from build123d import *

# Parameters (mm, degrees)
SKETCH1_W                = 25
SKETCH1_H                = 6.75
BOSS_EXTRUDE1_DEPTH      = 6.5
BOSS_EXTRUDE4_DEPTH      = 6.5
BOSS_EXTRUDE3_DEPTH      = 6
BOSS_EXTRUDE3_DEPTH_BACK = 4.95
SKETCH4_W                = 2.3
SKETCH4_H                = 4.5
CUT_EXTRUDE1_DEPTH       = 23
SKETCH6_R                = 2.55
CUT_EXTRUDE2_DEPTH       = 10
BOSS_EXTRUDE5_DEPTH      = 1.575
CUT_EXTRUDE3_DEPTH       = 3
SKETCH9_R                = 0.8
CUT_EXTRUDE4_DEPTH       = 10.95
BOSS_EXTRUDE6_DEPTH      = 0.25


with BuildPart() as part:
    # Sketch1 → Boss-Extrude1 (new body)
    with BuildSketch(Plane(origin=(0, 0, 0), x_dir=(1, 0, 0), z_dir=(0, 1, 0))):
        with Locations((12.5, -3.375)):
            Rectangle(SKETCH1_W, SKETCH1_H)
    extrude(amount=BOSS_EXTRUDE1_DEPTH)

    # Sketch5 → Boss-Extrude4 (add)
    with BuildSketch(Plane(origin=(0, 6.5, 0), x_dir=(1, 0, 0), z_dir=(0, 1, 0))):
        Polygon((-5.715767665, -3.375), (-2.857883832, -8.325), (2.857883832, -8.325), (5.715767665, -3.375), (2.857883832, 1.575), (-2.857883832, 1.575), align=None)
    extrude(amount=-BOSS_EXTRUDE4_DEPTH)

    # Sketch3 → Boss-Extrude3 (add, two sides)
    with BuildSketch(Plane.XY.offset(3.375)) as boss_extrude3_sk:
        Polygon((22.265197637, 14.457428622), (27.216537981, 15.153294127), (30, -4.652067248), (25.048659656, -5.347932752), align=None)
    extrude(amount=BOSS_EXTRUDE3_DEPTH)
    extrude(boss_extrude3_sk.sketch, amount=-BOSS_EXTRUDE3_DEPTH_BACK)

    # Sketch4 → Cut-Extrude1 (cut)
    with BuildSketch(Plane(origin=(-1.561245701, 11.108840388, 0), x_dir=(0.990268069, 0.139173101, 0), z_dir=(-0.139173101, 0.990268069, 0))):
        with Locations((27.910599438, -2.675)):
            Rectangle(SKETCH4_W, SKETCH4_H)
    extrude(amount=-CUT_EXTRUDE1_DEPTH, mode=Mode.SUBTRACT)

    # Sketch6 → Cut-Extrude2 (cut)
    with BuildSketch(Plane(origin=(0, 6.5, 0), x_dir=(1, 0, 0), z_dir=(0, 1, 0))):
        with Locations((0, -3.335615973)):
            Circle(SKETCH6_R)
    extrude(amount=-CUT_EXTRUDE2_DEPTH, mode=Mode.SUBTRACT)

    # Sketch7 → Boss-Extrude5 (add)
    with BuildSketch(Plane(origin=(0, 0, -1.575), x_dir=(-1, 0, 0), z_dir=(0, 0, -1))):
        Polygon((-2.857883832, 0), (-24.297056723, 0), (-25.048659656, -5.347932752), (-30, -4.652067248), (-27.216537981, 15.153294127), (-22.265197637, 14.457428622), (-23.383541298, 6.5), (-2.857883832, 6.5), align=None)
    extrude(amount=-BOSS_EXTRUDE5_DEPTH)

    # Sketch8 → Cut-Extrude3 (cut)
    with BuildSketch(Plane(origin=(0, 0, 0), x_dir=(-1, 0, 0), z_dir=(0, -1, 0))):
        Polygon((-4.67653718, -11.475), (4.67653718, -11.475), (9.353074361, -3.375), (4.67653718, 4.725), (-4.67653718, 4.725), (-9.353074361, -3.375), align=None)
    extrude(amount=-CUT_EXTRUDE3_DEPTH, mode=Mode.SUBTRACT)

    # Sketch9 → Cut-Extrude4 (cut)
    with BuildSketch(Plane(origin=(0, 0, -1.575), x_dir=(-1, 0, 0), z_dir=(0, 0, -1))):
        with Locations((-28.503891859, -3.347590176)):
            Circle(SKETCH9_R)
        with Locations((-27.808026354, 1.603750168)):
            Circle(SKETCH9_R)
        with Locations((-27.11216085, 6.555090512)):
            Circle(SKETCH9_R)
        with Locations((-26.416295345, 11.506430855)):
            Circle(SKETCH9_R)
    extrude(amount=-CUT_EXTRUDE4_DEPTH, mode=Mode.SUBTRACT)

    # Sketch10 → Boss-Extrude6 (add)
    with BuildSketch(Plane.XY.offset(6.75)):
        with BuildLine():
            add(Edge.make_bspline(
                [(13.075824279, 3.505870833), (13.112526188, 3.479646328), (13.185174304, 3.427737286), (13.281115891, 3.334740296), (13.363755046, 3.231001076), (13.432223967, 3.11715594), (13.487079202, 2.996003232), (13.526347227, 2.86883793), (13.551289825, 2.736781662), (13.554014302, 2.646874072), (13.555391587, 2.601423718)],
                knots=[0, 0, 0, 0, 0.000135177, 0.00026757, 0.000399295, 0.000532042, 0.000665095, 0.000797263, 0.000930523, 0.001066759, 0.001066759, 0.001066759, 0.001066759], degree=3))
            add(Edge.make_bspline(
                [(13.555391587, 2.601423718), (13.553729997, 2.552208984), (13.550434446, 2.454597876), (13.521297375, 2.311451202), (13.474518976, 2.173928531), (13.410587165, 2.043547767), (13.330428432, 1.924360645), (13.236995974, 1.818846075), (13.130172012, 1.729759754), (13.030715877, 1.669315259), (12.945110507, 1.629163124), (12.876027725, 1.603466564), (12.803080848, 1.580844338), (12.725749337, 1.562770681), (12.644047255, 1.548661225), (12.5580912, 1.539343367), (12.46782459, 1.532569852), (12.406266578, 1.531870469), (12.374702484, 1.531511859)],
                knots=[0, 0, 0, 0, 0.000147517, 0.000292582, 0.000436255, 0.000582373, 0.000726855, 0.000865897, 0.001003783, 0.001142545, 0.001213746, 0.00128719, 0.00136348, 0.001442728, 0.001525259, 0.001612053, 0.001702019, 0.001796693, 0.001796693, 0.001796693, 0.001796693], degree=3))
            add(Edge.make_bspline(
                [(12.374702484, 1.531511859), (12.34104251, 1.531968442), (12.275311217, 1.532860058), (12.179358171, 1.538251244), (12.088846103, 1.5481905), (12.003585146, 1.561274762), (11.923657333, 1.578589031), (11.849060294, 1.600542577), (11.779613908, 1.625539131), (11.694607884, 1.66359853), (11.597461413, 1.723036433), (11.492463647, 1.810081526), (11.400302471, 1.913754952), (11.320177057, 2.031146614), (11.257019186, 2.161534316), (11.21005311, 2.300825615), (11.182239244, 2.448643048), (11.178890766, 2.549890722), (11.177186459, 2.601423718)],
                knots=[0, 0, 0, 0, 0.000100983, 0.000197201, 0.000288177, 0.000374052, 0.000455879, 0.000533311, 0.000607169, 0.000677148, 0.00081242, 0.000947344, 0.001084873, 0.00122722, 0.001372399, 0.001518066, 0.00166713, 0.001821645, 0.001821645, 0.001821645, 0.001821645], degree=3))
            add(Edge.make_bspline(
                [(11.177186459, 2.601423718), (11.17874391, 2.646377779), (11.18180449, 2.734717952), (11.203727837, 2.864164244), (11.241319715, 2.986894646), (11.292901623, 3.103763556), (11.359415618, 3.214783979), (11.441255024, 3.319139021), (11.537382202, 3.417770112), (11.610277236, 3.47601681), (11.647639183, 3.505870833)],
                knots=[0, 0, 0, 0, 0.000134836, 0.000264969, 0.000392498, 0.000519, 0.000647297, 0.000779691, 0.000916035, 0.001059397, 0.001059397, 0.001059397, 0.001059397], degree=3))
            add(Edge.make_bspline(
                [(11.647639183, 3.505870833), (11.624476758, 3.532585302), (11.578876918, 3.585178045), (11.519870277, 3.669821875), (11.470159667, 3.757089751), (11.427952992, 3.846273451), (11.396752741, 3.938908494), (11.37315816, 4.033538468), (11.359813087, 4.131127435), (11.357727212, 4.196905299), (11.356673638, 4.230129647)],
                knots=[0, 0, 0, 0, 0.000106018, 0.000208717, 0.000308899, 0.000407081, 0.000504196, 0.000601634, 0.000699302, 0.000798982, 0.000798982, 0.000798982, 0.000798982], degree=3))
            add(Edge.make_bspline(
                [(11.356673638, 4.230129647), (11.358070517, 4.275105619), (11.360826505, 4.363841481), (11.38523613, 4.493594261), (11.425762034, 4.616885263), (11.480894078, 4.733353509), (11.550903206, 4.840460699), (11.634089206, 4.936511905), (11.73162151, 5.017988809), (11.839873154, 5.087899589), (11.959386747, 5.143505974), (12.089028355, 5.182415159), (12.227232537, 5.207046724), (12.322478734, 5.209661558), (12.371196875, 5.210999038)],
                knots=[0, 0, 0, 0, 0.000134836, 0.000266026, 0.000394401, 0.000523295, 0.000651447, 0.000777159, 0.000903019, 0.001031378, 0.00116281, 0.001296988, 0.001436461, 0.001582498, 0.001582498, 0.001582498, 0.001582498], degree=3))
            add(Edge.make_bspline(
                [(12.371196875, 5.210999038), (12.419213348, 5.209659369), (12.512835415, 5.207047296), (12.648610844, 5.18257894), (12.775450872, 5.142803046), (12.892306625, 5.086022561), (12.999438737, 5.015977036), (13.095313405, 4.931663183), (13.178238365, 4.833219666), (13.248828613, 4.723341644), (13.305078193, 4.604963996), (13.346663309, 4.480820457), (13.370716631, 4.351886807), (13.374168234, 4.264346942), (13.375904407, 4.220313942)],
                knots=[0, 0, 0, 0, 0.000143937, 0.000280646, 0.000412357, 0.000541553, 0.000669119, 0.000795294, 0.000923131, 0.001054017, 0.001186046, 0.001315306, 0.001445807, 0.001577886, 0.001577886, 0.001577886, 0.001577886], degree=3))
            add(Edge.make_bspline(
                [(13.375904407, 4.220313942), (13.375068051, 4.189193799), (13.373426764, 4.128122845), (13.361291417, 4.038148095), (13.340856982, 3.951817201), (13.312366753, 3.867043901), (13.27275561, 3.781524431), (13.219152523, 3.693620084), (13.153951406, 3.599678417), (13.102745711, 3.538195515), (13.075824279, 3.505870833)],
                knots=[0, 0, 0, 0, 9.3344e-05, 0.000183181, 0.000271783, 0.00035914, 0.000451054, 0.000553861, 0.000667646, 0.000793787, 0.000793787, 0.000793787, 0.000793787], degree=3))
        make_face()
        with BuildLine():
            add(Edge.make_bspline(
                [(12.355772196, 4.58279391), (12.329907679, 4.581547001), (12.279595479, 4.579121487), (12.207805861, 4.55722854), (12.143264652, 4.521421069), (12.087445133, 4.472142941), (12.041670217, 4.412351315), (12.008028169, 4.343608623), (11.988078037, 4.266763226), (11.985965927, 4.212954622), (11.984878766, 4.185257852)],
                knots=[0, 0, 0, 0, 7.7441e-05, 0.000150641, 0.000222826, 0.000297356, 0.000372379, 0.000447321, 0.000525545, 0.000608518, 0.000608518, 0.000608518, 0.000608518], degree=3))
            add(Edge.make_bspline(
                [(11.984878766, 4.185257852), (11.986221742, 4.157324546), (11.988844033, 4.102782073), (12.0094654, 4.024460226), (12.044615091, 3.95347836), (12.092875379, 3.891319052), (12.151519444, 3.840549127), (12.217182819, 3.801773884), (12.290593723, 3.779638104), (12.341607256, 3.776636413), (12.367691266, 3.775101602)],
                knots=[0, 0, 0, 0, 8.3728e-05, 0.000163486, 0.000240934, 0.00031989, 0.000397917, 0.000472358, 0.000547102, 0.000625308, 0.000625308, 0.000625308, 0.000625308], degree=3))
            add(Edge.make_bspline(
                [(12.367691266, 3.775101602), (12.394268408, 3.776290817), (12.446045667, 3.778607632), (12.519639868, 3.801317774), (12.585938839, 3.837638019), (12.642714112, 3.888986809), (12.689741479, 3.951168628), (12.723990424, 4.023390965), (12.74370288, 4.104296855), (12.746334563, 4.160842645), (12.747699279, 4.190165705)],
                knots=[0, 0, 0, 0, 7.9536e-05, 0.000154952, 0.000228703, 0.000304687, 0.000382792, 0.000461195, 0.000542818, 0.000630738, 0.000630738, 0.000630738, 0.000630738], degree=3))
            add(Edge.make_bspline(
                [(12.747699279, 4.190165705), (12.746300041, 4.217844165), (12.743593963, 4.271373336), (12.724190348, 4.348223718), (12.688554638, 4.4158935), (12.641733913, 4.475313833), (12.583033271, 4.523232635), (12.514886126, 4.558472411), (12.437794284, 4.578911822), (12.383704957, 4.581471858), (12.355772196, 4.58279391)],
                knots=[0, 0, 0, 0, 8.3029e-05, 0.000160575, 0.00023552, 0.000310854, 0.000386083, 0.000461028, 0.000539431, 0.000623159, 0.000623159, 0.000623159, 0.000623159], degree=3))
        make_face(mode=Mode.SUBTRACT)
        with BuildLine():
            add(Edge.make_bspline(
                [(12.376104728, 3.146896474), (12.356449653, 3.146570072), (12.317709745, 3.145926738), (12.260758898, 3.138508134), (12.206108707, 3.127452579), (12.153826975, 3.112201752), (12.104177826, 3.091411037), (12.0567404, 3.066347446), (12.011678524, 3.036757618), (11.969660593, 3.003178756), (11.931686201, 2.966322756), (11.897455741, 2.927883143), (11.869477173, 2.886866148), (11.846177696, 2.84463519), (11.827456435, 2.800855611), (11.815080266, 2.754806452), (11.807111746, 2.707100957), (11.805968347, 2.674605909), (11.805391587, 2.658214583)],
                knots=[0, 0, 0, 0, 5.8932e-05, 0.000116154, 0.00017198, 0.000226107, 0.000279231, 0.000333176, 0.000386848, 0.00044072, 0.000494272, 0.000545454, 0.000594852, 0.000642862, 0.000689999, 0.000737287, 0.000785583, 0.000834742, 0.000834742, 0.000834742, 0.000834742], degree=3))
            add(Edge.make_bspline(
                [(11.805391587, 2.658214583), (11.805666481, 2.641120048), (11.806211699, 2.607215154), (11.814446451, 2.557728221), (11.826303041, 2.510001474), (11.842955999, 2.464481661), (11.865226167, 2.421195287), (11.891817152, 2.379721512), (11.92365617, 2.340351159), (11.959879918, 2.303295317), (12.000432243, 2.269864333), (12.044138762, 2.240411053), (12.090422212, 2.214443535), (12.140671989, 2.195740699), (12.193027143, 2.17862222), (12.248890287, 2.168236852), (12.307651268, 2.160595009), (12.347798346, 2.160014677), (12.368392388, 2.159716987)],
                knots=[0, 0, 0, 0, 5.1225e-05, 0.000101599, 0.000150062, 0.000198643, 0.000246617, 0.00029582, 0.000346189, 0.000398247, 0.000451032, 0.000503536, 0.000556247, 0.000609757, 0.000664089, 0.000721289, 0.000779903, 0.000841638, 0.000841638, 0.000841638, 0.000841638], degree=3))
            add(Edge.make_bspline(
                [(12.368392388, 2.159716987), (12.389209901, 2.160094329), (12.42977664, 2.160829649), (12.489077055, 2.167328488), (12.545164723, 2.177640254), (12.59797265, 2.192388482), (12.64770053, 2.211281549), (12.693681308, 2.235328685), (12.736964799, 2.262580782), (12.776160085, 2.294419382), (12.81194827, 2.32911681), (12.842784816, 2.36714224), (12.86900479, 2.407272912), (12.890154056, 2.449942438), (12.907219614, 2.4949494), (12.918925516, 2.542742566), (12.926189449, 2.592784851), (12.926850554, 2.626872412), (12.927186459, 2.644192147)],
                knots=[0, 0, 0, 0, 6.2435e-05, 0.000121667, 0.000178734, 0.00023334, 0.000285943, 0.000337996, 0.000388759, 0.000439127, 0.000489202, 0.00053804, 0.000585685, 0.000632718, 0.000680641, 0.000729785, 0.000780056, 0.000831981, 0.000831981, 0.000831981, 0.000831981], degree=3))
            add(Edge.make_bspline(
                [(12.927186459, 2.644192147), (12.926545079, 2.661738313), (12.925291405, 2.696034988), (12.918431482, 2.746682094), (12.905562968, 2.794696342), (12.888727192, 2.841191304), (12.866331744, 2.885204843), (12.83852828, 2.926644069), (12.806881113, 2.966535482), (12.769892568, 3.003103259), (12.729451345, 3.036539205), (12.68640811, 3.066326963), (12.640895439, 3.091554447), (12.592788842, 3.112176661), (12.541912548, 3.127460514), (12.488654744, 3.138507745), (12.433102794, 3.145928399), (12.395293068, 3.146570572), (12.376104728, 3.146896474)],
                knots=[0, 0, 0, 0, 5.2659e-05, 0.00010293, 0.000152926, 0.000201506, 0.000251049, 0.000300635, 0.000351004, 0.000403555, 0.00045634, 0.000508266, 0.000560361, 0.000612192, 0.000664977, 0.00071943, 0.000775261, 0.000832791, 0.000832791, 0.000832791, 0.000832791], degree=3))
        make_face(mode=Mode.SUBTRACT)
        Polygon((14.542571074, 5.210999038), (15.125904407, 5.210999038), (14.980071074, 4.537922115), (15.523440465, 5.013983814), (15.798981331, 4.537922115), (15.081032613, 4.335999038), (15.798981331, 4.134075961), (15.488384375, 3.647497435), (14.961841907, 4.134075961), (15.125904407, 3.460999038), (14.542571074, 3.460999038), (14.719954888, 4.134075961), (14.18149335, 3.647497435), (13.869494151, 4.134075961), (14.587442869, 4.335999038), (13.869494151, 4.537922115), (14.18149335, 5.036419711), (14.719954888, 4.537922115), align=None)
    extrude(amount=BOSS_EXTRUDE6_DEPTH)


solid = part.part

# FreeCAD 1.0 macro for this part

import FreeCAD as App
import Part
import Sketcher
Q = App.Units.Quantity

doc = App.newDocument("Part")
params = doc.addObject("Spreadsheet::Sheet", "Params")
for row, (alias, value) in enumerate([
    ("sketch1_width", "25 mm"),
    ("sketch1_height", "6.75 mm"),
    ("pad1_length", "6.5 mm"),
    ("pad2_length", "6.5 mm"),
    ("sketch3_length", "5 mm"),
    ("sketch3_length2", "20 mm"),
    ("pad3_length", "6 mm"),
    ("pad3_length2", "4.95 mm"),
    ("sketch4_width", "2.3 mm"),
    ("sketch4_height", "4.5 mm"),
    ("pocket1_length", "23 mm"),
    ("sketch5_diameter", "5.1 mm"),
    ("pocket2_length", "10 mm"),
    ("sketch6_length", "5 mm"),
    ("sketch6_length2", "20 mm"),
    ("sketch6_height", "6.5 mm"),
    ("pad4_length", "1.575 mm"),
    ("pocket3_length", "3 mm"),
    ("sketch8_diameter", "1.6 mm"),
    ("pocket4_length", "10.95 mm"),
    ("pad5_length", "0.25 mm"),
], start=1):
    params.set(f"A{row}", alias)
    params.set(f"B{row}", "=" + value)
    params.setAlias(f"B{row}", alias)

body = doc.addObject("PartDesign::Body", "Body")

sketch1 = body.newObject("Sketcher::SketchObject", "Sketch")
sketch1.AttachmentSupport = (doc.getObject("XZ_Plane"), [""])
sketch1.MapMode = "FlatFace"
sketch1.addGeometry(Part.LineSegment(App.Vector(0, 0, 0), App.Vector(0, 7, 0)), False)
sketch1.addGeometry(Part.LineSegment(App.Vector(0, 7, 0), App.Vector(25, 7, 0)), False)
sketch1.addGeometry(Part.LineSegment(App.Vector(25, 7, 0), App.Vector(25, 0, 0)), False)
sketch1.addGeometry(Part.LineSegment(App.Vector(25, 0, 0), App.Vector(0, 0, 0)), False)
sketch1.addConstraint(Sketcher.Constraint("Coincident", 0, 2, 1, 1))
sketch1.addConstraint(Sketcher.Constraint("Coincident", 1, 2, 2, 1))
sketch1.addConstraint(Sketcher.Constraint("Coincident", 2, 2, 3, 1))
sketch1.addConstraint(Sketcher.Constraint("Coincident", 3, 2, 0, 1))
sketch1.addConstraint(Sketcher.Constraint("Vertical", 0))
sketch1.addConstraint(Sketcher.Constraint("Horizontal", 1))
sketch1.addConstraint(Sketcher.Constraint("Vertical", 2))
sketch1.addConstraint(Sketcher.Constraint("Horizontal", 3))
sketch1.addConstraint(Sketcher.Constraint("Coincident", 3, 2, -1, 1))
sketch1.addConstraint(Sketcher.Constraint("DistanceX", 1, 1, 1, 2, Q("25 mm")))
sketch1.addConstraint(Sketcher.Constraint("DistanceY", 0, 1, 0, 2, Q("6.75 mm")))
sketch1.setExpression("Constraints[9]", "Params.sketch1_width")
sketch1.setExpression("Constraints[10]", "Params.sketch1_height")
pad1 = body.newObject("PartDesign::Pad", "Pad")
pad1.Profile = sketch1
pad1.setExpression("Length", "Params.pad1_length")
pad1.Reversed = True

sketch2 = body.newObject("Sketcher::SketchObject", "Sketch001")
sketch2.AttachmentSupport = (doc.getObject("XZ_Plane"), [""])
sketch2.MapMode = "FlatFace"
sketch2.AttachmentOffset = App.Placement(App.Vector(0, 0, -6.5), App.Rotation())
sketch2.addGeometry(Part.LineSegment(App.Vector(-6, 3, 0), App.Vector(-3, 8, 0)), False)
sketch2.addGeometry(Part.LineSegment(App.Vector(-3, 8, 0), App.Vector(3, 8, 0)), False)
sketch2.addGeometry(Part.LineSegment(App.Vector(3, 8, 0), App.Vector(6, 3, 0)), False)
sketch2.addGeometry(Part.LineSegment(App.Vector(6, 3, 0), App.Vector(3, -2, 0)), False)
sketch2.addGeometry(Part.LineSegment(App.Vector(3, -2, 0), App.Vector(-3, -2, 0)), False)
sketch2.addGeometry(Part.LineSegment(App.Vector(-3, -2, 0), App.Vector(-6, 3, 0)), False)
sketch2.addConstraint(Sketcher.Constraint("Coincident", 0, 2, 1, 1))
sketch2.addConstraint(Sketcher.Constraint("Coincident", 1, 2, 2, 1))
sketch2.addConstraint(Sketcher.Constraint("Coincident", 2, 2, 3, 1))
sketch2.addConstraint(Sketcher.Constraint("Coincident", 3, 2, 4, 1))
sketch2.addConstraint(Sketcher.Constraint("Coincident", 4, 2, 5, 1))
sketch2.addConstraint(Sketcher.Constraint("Coincident", 5, 2, 0, 1))
sketch2.addConstraint(Sketcher.Constraint("Horizontal", 1))
sketch2.addConstraint(Sketcher.Constraint("Horizontal", 4))
sketch2.addConstraint(Sketcher.Constraint("Symmetric", 2, 2, 5, 2, -2))
sketch2.addConstraint(Sketcher.Constraint("Parallel", 0, 3))
sketch2.addConstraint(Sketcher.Constraint("Parallel", 2, 5))
sketch2.addConstraint(Sketcher.Constraint("Vertical", 1, 2, 3, 2))
sketch2.addConstraint(Sketcher.Constraint("Vertical", 0, 2, 4, 2))
sketch2.addConstraint(Sketcher.Constraint("Angle", 0, Q("60 deg")))
sketch2.addConstraint(Sketcher.Constraint("DistanceY", 3, 2, 1, 2, Q("9.9 mm")))
sketch2.addConstraint(Sketcher.Constraint("DistanceY", -1, 1, 0, 2, Q("8.325 mm")))
sketch2.addConstraint(Sketcher.Constraint("DistanceX", 1, 1, 1, 2, Q("5.715768 mm")))
pad2 = body.newObject("PartDesign::Pad", "Pad001")
pad2.Profile = sketch2
pad2.setExpression("Length", "Params.pad2_length")

sketch3 = body.newObject("Sketcher::SketchObject", "Sketch002")
sketch3.AttachmentSupport = (doc.getObject("XY_Plane"), [""])
sketch3.MapMode = "FlatFace"
sketch3.AttachmentOffset = App.Placement(App.Vector(0, 0, 3.375), App.Rotation())
sketch3.addGeometry(Part.LineSegment(App.Vector(27, 15, 0), App.Vector(22, 14, 0)), False)
sketch3.addGeometry(Part.LineSegment(App.Vector(22, 14, 0), App.Vector(25, -5, 0)), False)
sketch3.addGeometry(Part.LineSegment(App.Vector(25, -5, 0), App.Vector(30, -5, 0)), False)
sketch3.addGeometry(Part.LineSegment(App.Vector(30, -5, 0), App.Vector(27, 15, 0)), False)
sketch3.addConstraint(Sketcher.Constraint("Coincident", 0, 2, 1, 1))
sketch3.addConstraint(Sketcher.Constraint("Coincident", 1, 2, 2, 1))
sketch3.addConstraint(Sketcher.Constraint("Coincident", 2, 2, 3, 1))
sketch3.addConstraint(Sketcher.Constraint("Coincident", 3, 2, 0, 1))
sketch3.addConstraint(Sketcher.Constraint("Perpendicular", 0, 1))
sketch3.addConstraint(Sketcher.Constraint("Perpendicular", 1, 2))
sketch3.addConstraint(Sketcher.Constraint("Perpendicular", 2, 3))
sketch3.addConstraint(Sketcher.Constraint("Angle", 0, Q("-172 deg")))
sketch3.addConstraint(Sketcher.Constraint("Distance", 0, Q("5 mm")))
sketch3.addConstraint(Sketcher.Constraint("Distance", 1, Q("20 mm")))
sketch3.addConstraint(Sketcher.Constraint("DistanceX", -1, 1, 2, 2, Q("30 mm")))
sketch3.addConstraint(Sketcher.Constraint("DistanceY", -1, 1, 0, 2, Q("14.457429 mm")))
sketch3.setExpression("Constraints[8]", "Params.sketch3_length")
sketch3.setExpression("Constraints[9]", "Params.sketch3_length2")
pad3 = body.newObject("PartDesign::Pad", "Pad002")
pad3.Profile = sketch3
pad3.Type = "TwoLengths"
pad3.setExpression("Length", "Params.pad3_length")
pad3.setExpression("Length2", "Params.pad3_length2")

sketch4 = body.newObject("Sketcher::SketchObject", "Sketch003")
sketch4.Placement = App.Placement(App.Vector(-1.561246, 11.10884, 0), App.Rotation(App.Vector(0.990268069, 0.139173101, 0), App.Vector(0, 0, -1.000000001), App.Vector(-0.139173101, 0.990268069, 0), "ZXY"))
sketch4.addGeometry(Part.LineSegment(App.Vector(26.8, -0.4, 0), App.Vector(26.8, -4.9, 0)), False)
sketch4.addGeometry(Part.LineSegment(App.Vector(26.8, -4.9, 0), App.Vector(29.1, -4.9, 0)), False)
sketch4.addGeometry(Part.LineSegment(App.Vector(29.1, -4.9, 0), App.Vector(29.1, -0.4, 0)), False)
sketch4.addGeometry(Part.LineSegment(App.Vector(29.1, -0.4, 0), App.Vector(26.8, -0.4, 0)), False)
sketch4.addConstraint(Sketcher.Constraint("Coincident", 0, 2, 1, 1))
sketch4.addConstraint(Sketcher.Constraint("Coincident", 1, 2, 2, 1))
sketch4.addConstraint(Sketcher.Constraint("Coincident", 2, 2, 3, 1))
sketch4.addConstraint(Sketcher.Constraint("Coincident", 3, 2, 0, 1))
sketch4.addConstraint(Sketcher.Constraint("Vertical", 0))
sketch4.addConstraint(Sketcher.Constraint("Horizontal", 1))
sketch4.addConstraint(Sketcher.Constraint("Vertical", 2))
sketch4.addConstraint(Sketcher.Constraint("Horizontal", 3))
sketch4.addConstraint(Sketcher.Constraint("DistanceX", 1, 1, 1, 2, Q("2.3 mm")))
sketch4.addConstraint(Sketcher.Constraint("DistanceY", 0, 2, 0, 1, Q("4.5 mm")))
sketch4.addConstraint(Sketcher.Constraint("DistanceY", 0, 2, -1, 1, Q("4.925 mm")))
sketch4.addConstraint(Sketcher.Constraint("DistanceX", -1, 1, 0, 2, Q("26.760599 mm")))
sketch4.setExpression("Constraints[8]", "Params.sketch4_width")
sketch4.setExpression("Constraints[9]", "Params.sketch4_height")
pocket1 = body.newObject("PartDesign::Pocket", "Pocket")
pocket1.Profile = sketch4
pocket1.setExpression("Length", "Params.pocket1_length")

sketch5 = body.newObject("Sketcher::SketchObject", "Sketch004")
sketch5.AttachmentSupport = (doc.getObject("XZ_Plane"), [""])
sketch5.MapMode = "FlatFace"
sketch5.AttachmentOffset = App.Placement(App.Vector(0, 0, -6.5), App.Rotation())
sketch5.addGeometry(Part.Circle(App.Vector(0, 3.3, 0), App.Vector(0, 0, 1), 2.5), False)
sketch5.addConstraint(Sketcher.Constraint("PointOnObject", 0, 3, -2))
sketch5.addConstraint(Sketcher.Constraint("Diameter", 0, Q("5.1 mm")))
sketch5.addConstraint(Sketcher.Constraint("DistanceY", -1, 1, 0, 3, Q("3.335616 mm")))
sketch5.setExpression("Constraints[1]", "Params.sketch5_diameter")
pocket2 = body.newObject("PartDesign::Pocket", "Pocket001")
pocket2.Profile = sketch5
pocket2.setExpression("Length", "Params.pocket2_length")
pocket2.Reversed = True

sketch6 = body.newObject("Sketcher::SketchObject", "Sketch005")
sketch6.AttachmentSupport = (doc.getObject("XY_Plane"), [""])
sketch6.MapMode = "FlatFace"
sketch6.AttachmentOffset = App.Placement(App.Vector(0, 0, -1.575), App.Rotation())
sketch6.addGeometry(Part.LineSegment(App.Vector(24, 0, 0), App.Vector(3, 0, 0)), False)
sketch6.addGeometry(Part.LineSegment(App.Vector(3, 0, 0), App.Vector(3, 6, 0)), False)
sketch6.addGeometry(Part.LineSegment(App.Vector(3, 6, 0), App.Vector(23, 6, 0)), False)
sketch6.addGeometry(Part.LineSegment(App.Vector(23, 6, 0), App.Vector(22, 14, 0)), False)
sketch6.addGeometry(Part.LineSegment(App.Vector(22, 14, 0), App.Vector(27, 15, 0)), False)
sketch6.addGeometry(Part.LineSegment(App.Vector(27, 15, 0), App.Vector(30, -5, 0)), False)
sketch6.addGeometry(Part.LineSegment(App.Vector(30, -5, 0), App.Vector(25, -5, 0)), False)
sketch6.addGeometry(Part.LineSegment(App.Vector(25, -5, 0), App.Vector(24, 0, 0)), False)
sketch6.addConstraint(Sketcher.Constraint("Coincident", 0, 2, 1, 1))
sketch6.addConstraint(Sketcher.Constraint("Coincident", 1, 2, 2, 1))
sketch6.addConstraint(Sketcher.Constraint("Coincident", 2, 2, 3, 1))
sketch6.addConstraint(Sketcher.Constraint("Coincident", 3, 2, 4, 1))
sketch6.addConstraint(Sketcher.Constraint("Coincident", 4, 2, 5, 1))
sketch6.addConstraint(Sketcher.Constraint("Coincident", 5, 2, 6, 1))
sketch6.addConstraint(Sketcher.Constraint("Coincident", 6, 2, 7, 1))
sketch6.addConstraint(Sketcher.Constraint("Coincident", 7, 2, 0, 1))
sketch6.addConstraint(Sketcher.Constraint("Horizontal", 0))
sketch6.addConstraint(Sketcher.Constraint("Vertical", 1))
sketch6.addConstraint(Sketcher.Constraint("Horizontal", 2))
sketch6.addConstraint(Sketcher.Constraint("PointOnObject", 0, 2, -1))
sketch6.addConstraint(Sketcher.Constraint("Perpendicular", 3, 4))
sketch6.addConstraint(Sketcher.Constraint("Perpendicular", 4, 5))
sketch6.addConstraint(Sketcher.Constraint("Perpendicular", 5, 6))
sketch6.addConstraint(Sketcher.Constraint("Perpendicular", 6, 7))
sketch6.addConstraint(Sketcher.Constraint("Equal", 4, 6))
sketch6.addConstraint(Sketcher.Constraint("Angle", 3, Q("98 deg")))
sketch6.addConstraint(Sketcher.Constraint("Distance", 4, Q("5 mm")))
sketch6.addConstraint(Sketcher.Constraint("Distance", 5, Q("20 mm")))
sketch6.addConstraint(Sketcher.Constraint("DistanceY", 1, 1, 1, 2, Q("6.5 mm")))
sketch6.addConstraint(Sketcher.Constraint("DistanceX", -1, 1, 5, 2, Q("30 mm")))
sketch6.addConstraint(Sketcher.Constraint("Distance", 3, Q("8.035631 mm")))
sketch6.addConstraint(Sketcher.Constraint("DistanceX", 0, 2, 0, 1, Q("21.439173 mm")))
sketch6.setExpression("Constraints[18]", "Params.sketch6_length")
sketch6.setExpression("Constraints[19]", "Params.sketch6_length2")
sketch6.setExpression("Constraints[20]", "Params.sketch6_height")
pad4 = body.newObject("PartDesign::Pad", "Pad003")
pad4.Profile = sketch6
pad4.setExpression("Length", "Params.pad4_length")

sketch7 = body.newObject("Sketcher::SketchObject", "Sketch006")
sketch7.AttachmentSupport = (doc.getObject("XZ_Plane"), [""])
sketch7.MapMode = "FlatFace"
sketch7.addGeometry(Part.LineSegment(App.Vector(5, 11, 0), App.Vector(-5, 11, 0)), False)
sketch7.addGeometry(Part.LineSegment(App.Vector(-5, 11, 0), App.Vector(-9, 3, 0)), False)
sketch7.addGeometry(Part.LineSegment(App.Vector(-9, 3, 0), App.Vector(-5, -5, 0)), False)
sketch7.addGeometry(Part.LineSegment(App.Vector(-5, -5, 0), App.Vector(5, -5, 0)), False)
sketch7.addGeometry(Part.LineSegment(App.Vector(5, -5, 0), App.Vector(9, 3, 0)), False)
sketch7.addGeometry(Part.LineSegment(App.Vector(9, 3, 0), App.Vector(5, 11, 0)), False)
sketch7.addConstraint(Sketcher.Constraint("Coincident", 0, 2, 1, 1))
sketch7.addConstraint(Sketcher.Constraint("Coincident", 1, 2, 2, 1))
sketch7.addConstraint(Sketcher.Constraint("Coincident", 2, 2, 3, 1))
sketch7.addConstraint(Sketcher.Constraint("Coincident", 3, 2, 4, 1))
sketch7.addConstraint(Sketcher.Constraint("Coincident", 4, 2, 5, 1))
sketch7.addConstraint(Sketcher.Constraint("Coincident", 5, 2, 0, 1))
sketch7.addConstraint(Sketcher.Constraint("Horizontal", 0))
sketch7.addConstraint(Sketcher.Constraint("Horizontal", 3))
sketch7.addConstraint(Sketcher.Constraint("Symmetric", 1, 2, 4, 2, -2))
sketch7.addConstraint(Sketcher.Constraint("Parallel", 1, 4))
sketch7.addConstraint(Sketcher.Constraint("Parallel", 2, 5))
sketch7.addConstraint(Sketcher.Constraint("Vertical", 0, 2, 2, 2))
sketch7.addConstraint(Sketcher.Constraint("Vertical", 3, 2, 5, 2))
sketch7.addConstraint(Sketcher.Constraint("Angle", 1, Q("-120 deg")))
sketch7.addConstraint(Sketcher.Constraint("DistanceY", 1, 2, 0, 2, Q("8.1 mm")))
sketch7.addConstraint(Sketcher.Constraint("DistanceY", -1, 1, 0, 2, Q("11.475 mm")))
sketch7.addConstraint(Sketcher.Constraint("DistanceX", 0, 2, 0, 1, Q("9.353074 mm")))
pocket3 = body.newObject("PartDesign::Pocket", "Pocket002")
pocket3.Profile = sketch7
pocket3.setExpression("Length", "Params.pocket3_length")

sketch8 = body.newObject("Sketcher::SketchObject", "Sketch007")
sketch8.AttachmentSupport = (doc.getObject("XY_Plane"), [""])
sketch8.MapMode = "FlatFace"
sketch8.AttachmentOffset = App.Placement(App.Vector(0, 0, -1.575), App.Rotation())
sketch8.addGeometry(Part.Circle(App.Vector(28.5, -3.3, 0), App.Vector(0, 0, 1), 0.8), False)
sketch8.addGeometry(Part.Circle(App.Vector(27.8, 1.6, 0), App.Vector(0, 0, 1), 0.8), False)
sketch8.addGeometry(Part.Circle(App.Vector(27.1, 6.6, 0), App.Vector(0, 0, 1), 0.8), False)
sketch8.addGeometry(Part.Circle(App.Vector(26.4, 11.5, 0), App.Vector(0, 0, 1), 0.8), False)
sketch8.addConstraint(Sketcher.Constraint("Equal", 0, 1))
sketch8.addConstraint(Sketcher.Constraint("Equal", 1, 2))
sketch8.addConstraint(Sketcher.Constraint("Equal", 2, 3))
sketch8.addConstraint(Sketcher.Constraint("Diameter", 0, Q("1.6 mm")))
sketch8.addConstraint(Sketcher.Constraint("DistanceX", -1, 1, 0, 3, Q("28.503892 mm")))
sketch8.addConstraint(Sketcher.Constraint("DistanceY", 0, 3, -1, 1, Q("3.34759 mm")))
sketch8.addConstraint(Sketcher.Constraint("DistanceY", -1, 1, 1, 3, Q("1.60375 mm")))
sketch8.addConstraint(Sketcher.Constraint("DistanceX", -1, 1, 2, 3, Q("27.112161 mm")))
sketch8.addConstraint(Sketcher.Constraint("DistanceY", -1, 1, 2, 3, Q("6.555091 mm")))
sketch8.addConstraint(Sketcher.Constraint("DistanceY", -1, 1, 3, 3, Q("11.506431 mm")))
sketch8.addConstraint(Sketcher.Constraint("DistanceX", 3, 3, 1, 3, Q("1.391731 mm")))
sketch8.addConstraint(Sketcher.Constraint("DistanceX", -1, 1, 1, 3, Q("27.808026 mm")))
sketch8.setExpression("Constraints[3]", "Params.sketch8_diameter")
pocket4 = body.newObject("PartDesign::Pocket", "Pocket003")
pocket4.Profile = sketch8
pocket4.setExpression("Length", "Params.pocket4_length")
pocket4.Reversed = True

sketch9 = body.newObject("Sketcher::SketchObject", "Sketch008")
sketch9.AttachmentSupport = (doc.getObject("XY_Plane"), [""])
sketch9.MapMode = "FlatFace"
sketch9.AttachmentOffset = App.Placement(App.Vector(0, 0, 6.75), App.Rotation())
sketch9.addGeometry(Part.BSplineCurve([App.Vector(13.075824, 3.505871, 0), App.Vector(13.112526, 3.479646, 0), App.Vector(13.185174, 3.427737, 0), App.Vector(13.281116, 3.33474, 0), App.Vector(13.363755, 3.231001, 0), App.Vector(13.432224, 3.117156, 0), App.Vector(13.487079, 2.996003, 0), App.Vector(13.526347, 2.868838, 0), App.Vector(13.55129, 2.736782, 0), App.Vector(13.554014, 2.646874, 0), App.Vector(13.555392, 2.601424, 0)], [4, 1, 1, 1, 1, 1, 1, 1, 4], [0, 0.000135177, 0.00026757, 0.000399295, 0.000532042, 0.000665095, 0.000797263, 0.000930523, 0.001066759], False, 3, [1, 1, 1, 1, 1, 1, 1, 1, 1, 1, 1], False), False)
sketch9.addGeometry(Part.BSplineCurve([App.Vector(13.375904, 4.220314, 0), App.Vector(13.375068, 4.189194, 0), App.Vector(13.373427, 4.128123, 0), App.Vector(13.361291, 4.038148, 0), App.Vector(13.340857, 3.951817, 0), App.Vector(13.312367, 3.867044, 0), App.Vector(13.272756, 3.781524, 0), App.Vector(13.219153, 3.69362, 0), App.Vector(13.153951, 3.599678, 0), App.Vector(13.102746, 3.538196, 0), App.Vector(13.075824, 3.505871, 0)], [4, 1, 1, 1, 1, 1, 1, 1, 4], [0, 0.000093344, 0.000183181, 0.000271783, 0.00035914, 0.000451054, 0.000553861, 0.000667646, 0.000793787], False, 3, [1, 1, 1, 1, 1, 1, 1, 1, 1, 1, 1], False), False)
sketch9.addGeometry(Part.BSplineCurve([App.Vector(12.371197, 5.210999, 0), App.Vector(12.419213, 5.209659, 0), App.Vector(12.512835, 5.207047, 0), App.Vector(12.648611, 5.182579, 0), App.Vector(12.775451, 5.142803, 0), App.Vector(12.892307, 5.086023, 0), App.Vector(12.999439, 5.015977, 0), App.Vector(13.095313, 4.931663, 0), App.Vector(13.178238, 4.83322, 0), App.Vector(13.248829, 4.723342, 0), App.Vector(13.305078, 4.604964, 0), App.Vector(13.346663, 4.48082, 0), App.Vector(13.370717, 4.351887, 0), App.Vector(13.374168, 4.264347, 0), App.Vector(13.375904, 4.220314, 0)], [4, 1, 1, 1, 1, 1, 1, 1, 1, 1, 1, 1, 4], [0, 0.000143937, 0.000280646, 0.000412357, 0.000541553, 0.000669119, 0.000795294, 0.000923131, 0.001054017, 0.001186046, 0.001315306, 0.001445807, 0.001577886], False, 3, [1, 1, 1, 1, 1, 1, 1, 1, 1, 1, 1, 1, 1, 1, 1], False), False)
sketch9.addGeometry(Part.BSplineCurve([App.Vector(11.356674, 4.23013, 0), App.Vector(11.358071, 4.275106, 0), App.Vector(11.360827, 4.363841, 0), App.Vector(11.385236, 4.493594, 0), App.Vector(11.425762, 4.616885, 0), App.Vector(11.480894, 4.733354, 0), App.Vector(11.550903, 4.840461, 0), App.Vector(11.634089, 4.936512, 0), App.Vector(11.731622, 5.017989, 0), App.Vector(11.839873, 5.0879, 0), App.Vector(11.959387, 5.143506, 0), App.Vector(12.089028, 5.182415, 0), App.Vector(12.227233, 5.207047, 0), App.Vector(12.322479, 5.209662, 0), App.Vector(12.371197, 5.210999, 0)], [4, 1, 1, 1, 1, 1, 1, 1, 1, 1, 1, 1, 4], [0, 0.000134836, 0.000266026, 0.000394401, 0.000523295, 0.000651447, 0.000777159, 0.000903019, 0.001031378, 0.00116281, 0.001296988, 0.001436461, 0.001582498], False, 3, [1, 1, 1, 1, 1, 1, 1, 1, 1, 1, 1, 1, 1, 1, 1], False), False)
sketch9.addGeometry(Part.BSplineCurve([App.Vector(11.647639, 3.505871, 0), App.Vector(11.624477, 3.532585, 0), App.Vector(11.578877, 3.585178, 0), App.Vector(11.51987, 3.669822, 0), App.Vector(11.47016, 3.75709, 0), App.Vector(11.427953, 3.846273, 0), App.Vector(11.396753, 3.938908, 0), App.Vector(11.373158, 4.033538, 0), App.Vector(11.359813, 4.131127, 0), App.Vector(11.357727, 4.196905, 0), App.Vector(11.356674, 4.23013, 0)], [4, 1, 1, 1, 1, 1, 1, 1, 4], [0, 0.000106018, 0.000208717, 0.000308899, 0.000407081, 0.000504196, 0.000601634, 0.000699302, 0.000798982], False, 3, [1, 1, 1, 1, 1, 1, 1, 1, 1, 1, 1], False), False)
sketch9.addGeometry(Part.BSplineCurve([App.Vector(11.177186, 2.601424, 0), App.Vector(11.178744, 2.646378, 0), App.Vector(11.181804, 2.734718, 0), App.Vector(11.203728, 2.864164, 0), App.Vector(11.24132, 2.986895, 0), App.Vector(11.292902, 3.103764, 0), App.Vector(11.359416, 3.214784, 0), App.Vector(11.441255, 3.319139, 0), App.Vector(11.537382, 3.41777, 0), App.Vector(11.610277, 3.476017, 0), App.Vector(11.647639, 3.505871, 0)], [4, 1, 1, 1, 1, 1, 1, 1, 4], [0, 0.000134836, 0.000264969, 0.000392498, 0.000519, 0.000647297, 0.000779691, 0.000916035, 0.001059397], False, 3, [1, 1, 1, 1, 1, 1, 1, 1, 1, 1, 1], False), False)
sketch9.addGeometry(Part.BSplineCurve([App.Vector(12.374702, 1.531512, 0), App.Vector(12.341043, 1.531968, 0), App.Vector(12.275311, 1.53286, 0), App.Vector(12.179358, 1.538251, 0), App.Vector(12.088846, 1.548191, 0), App.Vector(12.003585, 1.561275, 0), App.Vector(11.923657, 1.578589, 0), App.Vector(11.84906, 1.600543, 0), App.Vector(11.779614, 1.625539, 0), App.Vector(11.694608, 1.663599, 0), App.Vector(11.597461, 1.723036, 0), App.Vector(11.492464, 1.810082, 0), App.Vector(11.400302, 1.913755, 0), App.Vector(11.320177, 2.031147, 0), App.Vector(11.257019, 2.161534, 0), App.Vector(11.210053, 2.300826, 0), App.Vector(11.182239, 2.448643, 0), App.Vector(11.178891, 2.549891, 0), App.Vector(11.177186, 2.601424, 0)], [4, 1, 1, 1, 1, 1, 1, 1, 1, 1, 1, 1, 1, 1, 1, 1, 4], [0, 0.000100983, 0.000197201, 0.000288177, 0.000374052, 0.000455879, 0.000533311, 0.000607169, 0.000677148, 0.00081242, 0.000947344, 0.001084873, 0.00122722, 0.001372399, 0.001518066, 0.00166713, 0.001821645], False, 3, [1, 1, 1, 1, 1, 1, 1, 1, 1, 1, 1, 1, 1, 1, 1, 1, 1, 1, 1], False), False)
sketch9.addGeometry(Part.BSplineCurve([App.Vector(13.555392, 2.601424, 0), App.Vector(13.55373, 2.552209, 0), App.Vector(13.550434, 2.454598, 0), App.Vector(13.521297, 2.311451, 0), App.Vector(13.474519, 2.173929, 0), App.Vector(13.410587, 2.043548, 0), App.Vector(13.330428, 1.924361, 0), App.Vector(13.236996, 1.818846, 0), App.Vector(13.130172, 1.72976, 0), App.Vector(13.030716, 1.669315, 0), App.Vector(12.945111, 1.629163, 0), App.Vector(12.876028, 1.603467, 0), App.Vector(12.803081, 1.580844, 0), App.Vector(12.725749, 1.562771, 0), App.Vector(12.644047, 1.548661, 0), App.Vector(12.558091, 1.539343, 0), App.Vector(12.467825, 1.53257, 0), App.Vector(12.406267, 1.53187, 0), App.Vector(12.374702, 1.531512, 0)], [4, 1, 1, 1, 1, 1, 1, 1, 1, 1, 1, 1, 1, 1, 1, 1, 4], [0, 0.000147517, 0.000292582, 0.000436255, 0.000582373, 0.000726855, 0.000865897, 0.001003783, 0.001142545, 0.001213746, 0.00128719, 0.00136348, 0.001442728, 0.001525259, 0.001612053, 0.001702019, 0.001796693], False, 3, [1, 1, 1, 1, 1, 1, 1, 1, 1, 1, 1, 1, 1, 1, 1, 1, 1, 1, 1], False), False)
sketch9.addGeometry(Part.BSplineCurve([App.Vector(12.927186, 2.644192, 0), App.Vector(12.926545, 2.661738, 0), App.Vector(12.925291, 2.696035, 0), App.Vector(12.918431, 2.746682, 0), App.Vector(12.905563, 2.794696, 0), App.Vector(12.888727, 2.841191, 0), App.Vector(12.866332, 2.885205, 0), App.Vector(12.838528, 2.926644, 0), App.Vector(12.806881, 2.966535, 0), App.Vector(12.769893, 3.003103, 0), App.Vector(12.729451, 3.036539, 0), App.Vector(12.686408, 3.066327, 0), App.Vector(12.640895, 3.091554, 0), App.Vector(12.592789, 3.112177, 0), App.Vector(12.541913, 3.127461, 0), App.Vector(12.488655, 3.138508, 0), App.Vector(12.433103, 3.145928, 0), App.Vector(12.395293, 3.146571, 0), App.Vector(12.376105, 3.146896, 0)], [4, 1, 1, 1, 1, 1, 1, 1, 1, 1, 1, 1, 1, 1, 1, 1, 4], [0, 0.000052659, 0.00010293, 0.000152926, 0.000201506, 0.000251049, 0.000300635, 0.000351004, 0.000403555, 0.00045634, 0.000508266, 0.000560361, 0.000612192, 0.000664977, 0.00071943, 0.000775261, 0.000832791], False, 3, [1, 1, 1, 1, 1, 1, 1, 1, 1, 1, 1, 1, 1, 1, 1, 1, 1, 1, 1], False), False)
sketch9.addGeometry(Part.BSplineCurve([App.Vector(12.368392, 2.159717, 0), App.Vector(12.38921, 2.160094, 0), App.Vector(12.429777, 2.16083, 0), App.Vector(12.489077, 2.167328, 0), App.Vector(12.545165, 2.17764, 0), App.Vector(12.597973, 2.192388, 0), App.Vector(12.647701, 2.211282, 0), App.Vector(12.693681, 2.235329, 0), App.Vector(12.736965, 2.262581, 0), App.Vector(12.77616, 2.294419, 0), App.Vector(12.811948, 2.329117, 0), App.Vector(12.842785, 2.367142, 0), App.Vector(12.869005, 2.407273, 0), App.Vector(12.890154, 2.449942, 0), App.Vector(12.90722, 2.494949, 0), App.Vector(12.918926, 2.542743, 0), App.Vector(12.926189, 2.592785, 0), App.Vector(12.926851, 2.626872, 0), App.Vector(12.927186, 2.644192, 0)], [4, 1, 1, 1, 1, 1, 1, 1, 1, 1, 1, 1, 1, 1, 1, 1, 4], [0, 0.000062435, 0.000121667, 0.000178734, 0.00023334, 0.000285943, 0.000337996, 0.000388759, 0.000439127, 0.000489202, 0.00053804, 0.000585685, 0.000632718, 0.000680641, 0.000729785, 0.000780056, 0.000831981], False, 3, [1, 1, 1, 1, 1, 1, 1, 1, 1, 1, 1, 1, 1, 1, 1, 1, 1, 1, 1], False), False)
sketch9.addGeometry(Part.BSplineCurve([App.Vector(11.805392, 2.658215, 0), App.Vector(11.805666, 2.64112, 0), App.Vector(11.806212, 2.607215, 0), App.Vector(11.814446, 2.557728, 0), App.Vector(11.826303, 2.510001, 0), App.Vector(11.842956, 2.464482, 0), App.Vector(11.865226, 2.421195, 0), App.Vector(11.891817, 2.379722, 0), App.Vector(11.923656, 2.340351, 0), App.Vector(11.95988, 2.303295, 0), App.Vector(12.000432, 2.269864, 0), App.Vector(12.044139, 2.240411, 0), App.Vector(12.090422, 2.214444, 0), App.Vector(12.140672, 2.195741, 0), App.Vector(12.193027, 2.178622, 0), App.Vector(12.24889, 2.168237, 0), App.Vector(12.307651, 2.160595, 0), App.Vector(12.347798, 2.160015, 0), App.Vector(12.368392, 2.159717, 0)], [4, 1, 1, 1, 1, 1, 1, 1, 1, 1, 1, 1, 1, 1, 1, 1, 4], [0, 0.000051225, 0.000101599, 0.000150062, 0.000198643, 0.000246617, 0.00029582, 0.000346189, 0.000398247, 0.000451032, 0.000503536, 0.000556247, 0.000609757, 0.000664089, 0.000721289, 0.000779903, 0.000841638], False, 3, [1, 1, 1, 1, 1, 1, 1, 1, 1, 1, 1, 1, 1, 1, 1, 1, 1, 1, 1], False), False)
sketch9.addGeometry(Part.BSplineCurve([App.Vector(12.376105, 3.146896, 0), App.Vector(12.35645, 3.14657, 0), App.Vector(12.31771, 3.145927, 0), App.Vector(12.260759, 3.138508, 0), App.Vector(12.206109, 3.127453, 0), App.Vector(12.153827, 3.112202, 0), App.Vector(12.104178, 3.091411, 0), App.Vector(12.05674, 3.066347, 0), App.Vector(12.011679, 3.036758, 0), App.Vector(11.969661, 3.003179, 0), App.Vector(11.931686, 2.966323, 0), App.Vector(11.897456, 2.927883, 0), App.Vector(11.869477, 2.886866, 0), App.Vector(11.846178, 2.844635, 0), App.Vector(11.827456, 2.800856, 0), App.Vector(11.81508, 2.754806, 0), App.Vector(11.807112, 2.707101, 0), App.Vector(11.805968, 2.674606, 0), App.Vector(11.805392, 2.658215, 0)], [4, 1, 1, 1, 1, 1, 1, 1, 1, 1, 1, 1, 1, 1, 1, 1, 4], [0, 0.000058932, 0.000116154, 0.00017198, 0.000226107, 0.000279231, 0.000333176, 0.000386848, 0.00044072, 0.000494272, 0.000545454, 0.000594852, 0.000642862, 0.000689999, 0.000737287, 0.000785583, 0.000834742], False, 3, [1, 1, 1, 1, 1, 1, 1, 1, 1, 1, 1, 1, 1, 1, 1, 1, 1, 1, 1], False), False)
sketch9.addGeometry(Part.BSplineCurve([App.Vector(12.747699, 4.190166, 0), App.Vector(12.7463, 4.217844, 0), App.Vector(12.743594, 4.271373, 0), App.Vector(12.72419, 4.348224, 0), App.Vector(12.688555, 4.415894, 0), App.Vector(12.641734, 4.475314, 0), App.Vector(12.583033, 4.523233, 0), App.Vector(12.514886, 4.558472, 0), App.Vector(12.437794, 4.578912, 0), App.Vector(12.383705, 4.581472, 0), App.Vector(12.355772, 4.582794, 0)], [4, 1, 1, 1, 1, 1, 1, 1, 4], [0, 0.000083029, 0.000160575, 0.00023552, 0.000310854, 0.000386083, 0.000461028, 0.000539431, 0.000623159], False, 3, [1, 1, 1, 1, 1, 1, 1, 1, 1, 1, 1], False), False)
sketch9.addGeometry(Part.BSplineCurve([App.Vector(12.367691, 3.775102, 0), App.Vector(12.394268, 3.776291, 0), App.Vector(12.446046, 3.778608, 0), App.Vector(12.51964, 3.801318, 0), App.Vector(12.585939, 3.837638, 0), App.Vector(12.642714, 3.888987, 0), App.Vector(12.689741, 3.951169, 0), App.Vector(12.72399, 4.023391, 0), App.Vector(12.743703, 4.104297, 0), App.Vector(12.746335, 4.160843, 0), App.Vector(12.747699, 4.190166, 0)], [4, 1, 1, 1, 1, 1, 1, 1, 4], [0, 0.000079536, 0.000154952, 0.000228703, 0.000304687, 0.000382792, 0.000461195, 0.000542818, 0.000630738], False, 3, [1, 1, 1, 1, 1, 1, 1, 1, 1, 1, 1], False), False)
sketch9.addGeometry(Part.BSplineCurve([App.Vector(11.984879, 4.185258, 0), App.Vector(11.986222, 4.157325, 0), App.Vector(11.988844, 4.102782, 0), App.Vector(12.009465, 4.02446, 0), App.Vector(12.044615, 3.953478, 0), App.Vector(12.092875, 3.891319, 0), App.Vector(12.151519, 3.840549, 0), App.Vector(12.217183, 3.801774, 0), App.Vector(12.290594, 3.779638, 0), App.Vector(12.341607, 3.776636, 0), App.Vector(12.367691, 3.775102, 0)], [4, 1, 1, 1, 1, 1, 1, 1, 4], [0, 0.000083728, 0.000163486, 0.000240934, 0.00031989, 0.000397917, 0.000472358, 0.000547102, 0.000625308], False, 3, [1, 1, 1, 1, 1, 1, 1, 1, 1, 1, 1], False), False)
sketch9.addGeometry(Part.BSplineCurve([App.Vector(12.355772, 4.582794, 0), App.Vector(12.329908, 4.581547, 0), App.Vector(12.279595, 4.579121, 0), App.Vector(12.207806, 4.557229, 0), App.Vector(12.143265, 4.521421, 0), App.Vector(12.087445, 4.472143, 0), App.Vector(12.04167, 4.412351, 0), App.Vector(12.008028, 4.343609, 0), App.Vector(11.988078, 4.266763, 0), App.Vector(11.985966, 4.212955, 0), App.Vector(11.984879, 4.185258, 0)], [4, 1, 1, 1, 1, 1, 1, 1, 4], [0, 0.000077441, 0.000150641, 0.000222826, 0.000297356, 0.000372379, 0.000447321, 0.000525545, 0.000608518], False, 3, [1, 1, 1, 1, 1, 1, 1, 1, 1, 1, 1], False), False)
sketch9.addGeometry(Part.LineSegment(App.Vector(15.125904, 5.210999, 0), App.Vector(14.542571, 5.210999, 0)), False)
sketch9.addGeometry(Part.LineSegment(App.Vector(14.542571, 5.210999, 0), App.Vector(14.719955, 4.537922, 0)), False)
sketch9.addGeometry(Part.LineSegment(App.Vector(14.719955, 4.537922, 0), App.Vector(14.181493, 5.03642, 0)), False)
sketch9.addGeometry(Part.LineSegment(App.Vector(14.181493, 5.03642, 0), App.Vector(13.869494, 4.537922, 0)), False)
sketch9.addGeometry(Part.LineSegment(App.Vector(13.869494, 4.537922, 0), App.Vector(14.587443, 4.335999, 0)), False)
sketch9.addGeometry(Part.LineSegment(App.Vector(14.587443, 4.335999, 0), App.Vector(13.869494, 4.134076, 0)), False)
sketch9.addGeometry(Part.LineSegment(App.Vector(13.869494, 4.134076, 0), App.Vector(14.181493, 3.647497, 0)), False)
sketch9.addGeometry(Part.LineSegment(App.Vector(14.181493, 3.647497, 0), App.Vector(14.719955, 4.134076, 0)), False)
sketch9.addGeometry(Part.LineSegment(App.Vector(14.719955, 4.134076, 0), App.Vector(14.542571, 3.460999, 0)), False)
sketch9.addGeometry(Part.LineSegment(App.Vector(14.542571, 3.460999, 0), App.Vector(15.125904, 3.460999, 0)), False)
sketch9.addGeometry(Part.LineSegment(App.Vector(15.125904, 3.460999, 0), App.Vector(14.961842, 4.134076, 0)), False)
sketch9.addGeometry(Part.LineSegment(App.Vector(14.961842, 4.134076, 0), App.Vector(15.488384, 3.647497, 0)), False)
sketch9.addGeometry(Part.LineSegment(App.Vector(15.488384, 3.647497, 0), App.Vector(15.798981, 4.134076, 0)), False)
sketch9.addGeometry(Part.LineSegment(App.Vector(15.798981, 4.134076, 0), App.Vector(15.081033, 4.335999, 0)), False)
sketch9.addGeometry(Part.LineSegment(App.Vector(15.081033, 4.335999, 0), App.Vector(15.798981, 4.537922, 0)), False)
sketch9.addGeometry(Part.LineSegment(App.Vector(15.798981, 4.537922, 0), App.Vector(15.52344, 5.013984, 0)), False)
sketch9.addGeometry(Part.LineSegment(App.Vector(15.52344, 5.013984, 0), App.Vector(14.980071, 4.537922, 0)), False)
sketch9.addGeometry(Part.LineSegment(App.Vector(14.980071, 4.537922, 0), App.Vector(15.125904, 5.210999, 0)), False)
sketch9.addConstraint(Sketcher.Constraint("Block", 0))
sketch9.addConstraint(Sketcher.Constraint("Block", 1))
sketch9.addConstraint(Sketcher.Constraint("Block", 2))
sketch9.addConstraint(Sketcher.Constraint("Block", 3))
sketch9.addConstraint(Sketcher.Constraint("Block", 4))
sketch9.addConstraint(Sketcher.Constraint("Block", 5))
sketch9.addConstraint(Sketcher.Constraint("Block", 6))
sketch9.addConstraint(Sketcher.Constraint("Block", 7))
sketch9.addConstraint(Sketcher.Constraint("Block", 8))
sketch9.addConstraint(Sketcher.Constraint("Block", 9))
sketch9.addConstraint(Sketcher.Constraint("Block", 10))
sketch9.addConstraint(Sketcher.Constraint("Block", 11))
sketch9.addConstraint(Sketcher.Constraint("Block", 12))
sketch9.addConstraint(Sketcher.Constraint("Block", 13))
sketch9.addConstraint(Sketcher.Constraint("Block", 14))
sketch9.addConstraint(Sketcher.Constraint("Block", 15))
sketch9.addConstraint(Sketcher.Constraint("Coincident", 16, 2, 17, 1))
sketch9.addConstraint(Sketcher.Constraint("Coincident", 17, 2, 18, 1))
sketch9.addConstraint(Sketcher.Constraint("Coincident", 18, 2, 19, 1))
sketch9.addConstraint(Sketcher.Constraint("Coincident", 19, 2, 20, 1))
sketch9.addConstraint(Sketcher.Constraint("Coincident", 20, 2, 21, 1))
sketch9.addConstraint(Sketcher.Constraint("Coincident", 21, 2, 22, 1))
sketch9.addConstraint(Sketcher.Constraint("Coincident", 22, 2, 23, 1))
sketch9.addConstraint(Sketcher.Constraint("Coincident", 23, 2, 24, 1))
sketch9.addConstraint(Sketcher.Constraint("Coincident", 24, 2, 25, 1))
sketch9.addConstraint(Sketcher.Constraint("Coincident", 25, 2, 26, 1))
sketch9.addConstraint(Sketcher.Constraint("Coincident", 26, 2, 27, 1))
sketch9.addConstraint(Sketcher.Constraint("Coincident", 27, 2, 28, 1))
sketch9.addConstraint(Sketcher.Constraint("Coincident", 28, 2, 29, 1))
sketch9.addConstraint(Sketcher.Constraint("Coincident", 29, 2, 30, 1))
sketch9.addConstraint(Sketcher.Constraint("Coincident", 30, 2, 31, 1))
sketch9.addConstraint(Sketcher.Constraint("Coincident", 31, 2, 32, 1))
sketch9.addConstraint(Sketcher.Constraint("Coincident", 32, 2, 33, 1))
sketch9.addConstraint(Sketcher.Constraint("Coincident", 33, 2, 16, 1))
sketch9.addConstraint(Sketcher.Constraint("Horizontal", 16))
sketch9.addConstraint(Sketcher.Constraint("Horizontal", 25))
sketch9.addConstraint(Sketcher.Constraint("Parallel", 20, 29))
sketch9.addConstraint(Sketcher.Constraint("Parallel", 21, 30))
sketch9.addConstraint(Sketcher.Constraint("Horizontal", 17, 2, 19, 2))
sketch9.addConstraint(Sketcher.Constraint("Horizontal", 21, 2, 23, 2))
sketch9.addConstraint(Sketcher.Constraint("Horizontal", 23, 2, 26, 2))
sketch9.addConstraint(Sketcher.Constraint("Horizontal", 22, 2, 27, 2))
sketch9.addConstraint(Sketcher.Constraint("Horizontal", 26, 2, 28, 2))
sketch9.addConstraint(Sketcher.Constraint("Horizontal", 20, 2, 29, 2))
sketch9.addConstraint(Sketcher.Constraint("Horizontal", 19, 2, 30, 2))
sketch9.addConstraint(Sketcher.Constraint("Horizontal", 30, 2, 32, 2))
sketch9.addConstraint(Sketcher.Constraint("Vertical", 19, 2, 21, 2))
sketch9.addConstraint(Sketcher.Constraint("Vertical", 18, 2, 22, 2))
sketch9.addConstraint(Sketcher.Constraint("Vertical", 17, 2, 23, 2))
sketch9.addConstraint(Sketcher.Constraint("Vertical", 16, 2, 24, 2))
sketch9.addConstraint(Sketcher.Constraint("Vertical", 28, 2, 30, 2))
sketch9.addConstraint(Sketcher.Constraint("Vertical", 25, 2, 33, 2))
sketch9.addConstraint(Sketcher.Constraint("Equal", 17, 24))
sketch9.addConstraint(Sketcher.Constraint("DistanceY", -1, 1, 16, 2, Q("5.210999 mm")))
sketch9.addConstraint(Sketcher.Constraint("DistanceY", -1, 1, 20, 2, Q("4.335999 mm")))
sketch9.addConstraint(Sketcher.Constraint("DistanceX", 19, 2, 18, 2, Q("0.311999 mm")))
sketch9.addConstraint(Sketcher.Constraint("DistanceY", 22, 2, 20, 2, Q("0.688502 mm")))
sketch9.addConstraint(Sketcher.Constraint("DistanceX", 20, 2, 26, 2, Q("0.374399 mm")))
sketch9.addConstraint(Sketcher.Constraint("Distance", 17, Q("0.696059 mm")))
sketch9.addConstraint(Sketcher.Constraint("Distance", 23, Q("0.725741 mm")))
sketch9.addConstraint(Sketcher.Constraint("Distance", 27, Q("0.716942 mm")))
sketch9.addConstraint(Sketcher.Constraint("Distance", 28, Q("0.57726 mm")))
sketch9.addConstraint(Sketcher.Constraint("DistanceX", 16, 2, 16, 1, Q("0.583333 mm")))
sketch9.addConstraint(Sketcher.Constraint("DistanceX", -1, 1, 16, 2, Q("14.542571 mm")))
sketch9.addConstraint(Sketcher.Constraint("DistanceY", -1, 1, 18, 2, Q("5.03642 mm")))
sketch9.addConstraint(Sketcher.Constraint("DistanceX", -1, 1, 26, 2, Q("14.961842 mm")))
sketch9.addConstraint(Sketcher.Constraint("DistanceX", -1, 1, 28, 2, Q("15.798981 mm")))
sketch9.addConstraint(Sketcher.Constraint("DistanceX", -1, 1, 31, 2, Q("15.52344 mm")))
sketch9.addConstraint(Sketcher.Constraint("DistanceX", -1, 1, 32, 2, Q("14.980071 mm")))
sketch9.addConstraint(Sketcher.Constraint("DistanceY", 30, 2, 31, 2, Q("0.476062 mm")))
pad5 = body.newObject("PartDesign::Pad", "Pad004")
pad5.Profile = sketch9
pad5.setExpression("Length", "Params.pad5_length")

doc.recompute()
